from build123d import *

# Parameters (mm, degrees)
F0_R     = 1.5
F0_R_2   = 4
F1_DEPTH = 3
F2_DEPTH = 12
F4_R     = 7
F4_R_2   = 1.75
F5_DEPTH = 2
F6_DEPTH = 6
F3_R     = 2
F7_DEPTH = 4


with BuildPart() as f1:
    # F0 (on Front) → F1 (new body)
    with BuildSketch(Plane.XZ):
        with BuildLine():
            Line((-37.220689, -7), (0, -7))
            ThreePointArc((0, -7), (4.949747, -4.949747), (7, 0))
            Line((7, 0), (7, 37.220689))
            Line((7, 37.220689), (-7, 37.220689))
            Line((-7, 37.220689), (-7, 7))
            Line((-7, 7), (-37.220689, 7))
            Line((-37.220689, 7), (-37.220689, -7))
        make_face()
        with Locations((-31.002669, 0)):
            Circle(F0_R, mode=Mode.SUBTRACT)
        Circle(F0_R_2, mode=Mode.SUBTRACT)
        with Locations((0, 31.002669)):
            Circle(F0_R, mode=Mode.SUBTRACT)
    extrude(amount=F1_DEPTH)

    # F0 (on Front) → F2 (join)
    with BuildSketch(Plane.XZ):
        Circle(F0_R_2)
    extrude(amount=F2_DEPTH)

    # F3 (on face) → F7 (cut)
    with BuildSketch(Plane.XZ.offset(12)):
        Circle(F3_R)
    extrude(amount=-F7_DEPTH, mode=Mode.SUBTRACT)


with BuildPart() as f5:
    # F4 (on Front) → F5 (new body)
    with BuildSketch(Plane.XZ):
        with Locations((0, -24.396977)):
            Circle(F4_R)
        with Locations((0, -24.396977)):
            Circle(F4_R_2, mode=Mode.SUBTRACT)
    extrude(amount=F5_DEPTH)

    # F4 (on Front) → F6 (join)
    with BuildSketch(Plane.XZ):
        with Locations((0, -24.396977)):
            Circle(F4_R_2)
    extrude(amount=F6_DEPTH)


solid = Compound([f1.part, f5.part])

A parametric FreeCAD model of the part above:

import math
import FreeCAD as App
import Part
import Sketcher

doc = App.newDocument("Part")
body = doc.addObject("PartDesign::Body", "Body")

sketch1 = body.newObject("Sketcher::SketchObject", "Sketch")
sketch1.AttachmentSupport = (doc.getObject("XZ_Plane"), [""])
sketch1.MapMode = "FlatFace"
sketch1.addGeometry(Part.LineSegment(App.Vector(-37.2, -7, 0), App.Vector(0, -7, 0)), False)
sketch1.addGeometry(Part.ArcOfCircle(Part.Circle(App.Vector(0, 0, 0), App.Vector(0, 0, 1), 7), math.radians(-90), math.radians(0)), False)
sketch1.addGeometry(Part.LineSegment(App.Vector(7, 0, 0), App.Vector(7, 37.2, 0)), False)
sketch1.addGeometry(Part.LineSegment(App.Vector(7, 37.2, 0), App.Vector(-7, 37.2, 0)), False)
sketch1.addGeometry(Part.LineSegment(App.Vector(-7, 37.2, 0), App.Vector(-7, 7, 0)), False)
sketch1.addGeometry(Part.LineSegment(App.Vector(-7, 7, 0), App.Vector(-37.2, 7, 0)), False)
sketch1.addGeometry(Part.LineSegment(App.Vector(-37.2, 7, 0), App.Vector(-37.2, -7, 0)), False)
sketch1.addGeometry(Part.Circle(App.Vector(-31, 0, 0), App.Vector(0, 0, 1), 1.5), False)
sketch1.addGeometry(Part.Circle(App.Vector(0, 0, 0), App.Vector(0, 0, 1), 4), False)
sketch1.addGeometry(Part.Circle(App.Vector(0, 31, 0), App.Vector(0, 0, 1), 1.5), False)
sketch1.addConstraint(Sketcher.Constraint("Tangent", 0, 2, 1, 1))
sketch1.addConstraint(Sketcher.Constraint("Tangent", 1, 2, 2, 1))
sketch1.addConstraint(Sketcher.Constraint("Coincident", 2, 2, 3, 1))
sketch1.addConstraint(Sketcher.Constraint("Coincident", 3, 2, 4, 1))
sketch1.addConstraint(Sketcher.Constraint("Coincident", 4, 2, 5, 1))
sketch1.addConstraint(Sketcher.Constraint("Coincident", 5, 2, 6, 1))
sketch1.addConstraint(Sketcher.Constraint("Coincident", 6, 2, 0, 1))
sketch1.addConstraint(Sketcher.Constraint("Horizontal", 0))
sketch1.addConstraint(Sketcher.Constraint("Vertical", 2))
sketch1.addConstraint(Sketcher.Constraint("Horizontal", 3))
sketch1.addConstraint(Sketcher.Constraint("Vertical", 4))
sketch1.addConstraint(Sketcher.Constraint("Horizontal", 5))
sketch1.addConstraint(Sketcher.Constraint("Vertical", 6))
sketch1.addConstraint(Sketcher.Constraint("Coincident", 1, 3, -1, 1))
sketch1.addConstraint(Sketcher.Constraint("Coincident", 8, 3, -1, 1))
sketch1.addConstraint(Sketcher.Constraint("Equal", 7, 9))
sketch1.addConstraint(Sketcher.Constraint("PointOnObject", 7, 3, -1))
sketch1.addConstraint(Sketcher.Constraint("PointOnObject", 9, 3, -2))
sketch1.addConstraint(Sketcher.Constraint("Equal", 0, 2))
sketch1.addConstraint(Sketcher.Constraint("Equal", 5, 4))
sketch1.addConstraint(Sketcher.Constraint("Diameter", 7, 3.0))
sketch1.addConstraint(Sketcher.Constraint("Diameter", 8, 8.0))
sketch1.addConstraint(Sketcher.Constraint("Radius", 1, 7.000002))
sketch1.addConstraint(Sketcher.Constraint("DistanceX", 3, 2, 3, 1, 14.0))
sketch1.addConstraint(Sketcher.Constraint("DistanceX", 0, 1, 0, 2, 37.220689))
sketch1.addConstraint(Sketcher.Constraint("DistanceX", 7, 3, -1, 1, 31.002669))
sketch1.addConstraint(Sketcher.Constraint("DistanceY", -1, 1, 9, 3, 31.002669))
pad1 = body.newObject("PartDesign::Pad", "Pad")
pad1.Profile = sketch1
pad1.Length = 3

sketch2 = body.newObject("Sketcher::SketchObject", "Sketch001")
sketch2.AttachmentSupport = (doc.getObject("XZ_Plane"), [""])
sketch2.MapMode = "FlatFace"
sketch2.addGeometry(Part.Circle(App.Vector(0, 0, 0), App.Vector(0, 0, 1), 4), False)
sketch2.addConstraint(Sketcher.Constraint("Coincident", 0, 3, -1, 1))
sketch2.addConstraint(Sketcher.Constraint("Diameter", 0, 8.0))
pad2 = body.newObject("PartDesign::Pad", "Pad001")
pad2.Profile = sketch2
pad2.Length = 12

sketch3 = body.newObject("Sketcher::SketchObject", "Sketch002")
sketch3.AttachmentSupport = (doc.getObject("XZ_Plane"), [""])
sketch3.MapMode = "FlatFace"
sketch3.AttachmentOffset = App.Placement(App.Vector(0, 0, 12), App.Rotation())
sketch3.addGeometry(Part.Circle(App.Vector(0, 0, 0), App.Vector(0, 0, 1), 2), False)
sketch3.addConstraint(Sketcher.Constraint("Coincident", 0, 3, -1, 1))
sketch3.addConstraint(Sketcher.Constraint("Diameter", 0, 4.0))
pocket1 = body.newObject("PartDesign::Pocket", "Pocket")
pocket1.Profile = sketch3
pocket1.Length = 4
body2 = doc.addObject("PartDesign::Body", "Body001")

sketch4 = body2.newObject("Sketcher::SketchObject", "Sketch003")
sketch4.AttachmentSupport = (doc.getObject("XZ_Plane001"), [""])
sketch4.MapMode = "FlatFace"
sketch4.addGeometry(Part.Circle(App.Vector(0, -24.4, 0), App.Vector(0, 0, 1), 7), False)
sketch4.addGeometry(Part.Circle(App.Vector(0, -24.4, 0), App.Vector(0, 0, 1), 1.8), False)
sketch4.addConstraint(Sketcher.Constraint("Coincident", 1, 3, 0, 3))
sketch4.addConstraint(Sketcher.Constraint("PointOnObject", 0, 3, -2))
sketch4.addConstraint(Sketcher.Constraint("Diameter", 0, 14.0))
sketch4.addConstraint(Sketcher.Constraint("Diameter", 1, 3.5))
sketch4.addConstraint(Sketcher.Constraint("DistanceY", 0, 3, -1, 1, 24.396977))
pad3 = body2.newObject("PartDesign::Pad", "Pad002")
pad3.Profile = sketch4
pad3.Length = 2

sketch5 = body2.newObject("Sketcher::SketchObject", "Sketch004")
sketch5.AttachmentSupport = (doc.getObject("XZ_Plane001"), [""])
sketch5.MapMode = "FlatFace"
sketch5.addGeometry(Part.Circle(App.Vector(0, -24.4, 0), App.Vector(0, 0, 1), 1.8), False)
sketch5.addConstraint(Sketcher.Constraint("PointOnObject", 0, 3, -2))
sketch5.addConstraint(Sketcher.Constraint("Diameter", 0, 3.5))
sketch5.addConstraint(Sketcher.Constraint("DistanceY", 0, 3, -1, 1, 24.396977))
pad4 = body2.newObject("PartDesign::Pad", "Pad003")
pad4.Profile = sketch5
pad4.Length = 6

doc.recompute()
